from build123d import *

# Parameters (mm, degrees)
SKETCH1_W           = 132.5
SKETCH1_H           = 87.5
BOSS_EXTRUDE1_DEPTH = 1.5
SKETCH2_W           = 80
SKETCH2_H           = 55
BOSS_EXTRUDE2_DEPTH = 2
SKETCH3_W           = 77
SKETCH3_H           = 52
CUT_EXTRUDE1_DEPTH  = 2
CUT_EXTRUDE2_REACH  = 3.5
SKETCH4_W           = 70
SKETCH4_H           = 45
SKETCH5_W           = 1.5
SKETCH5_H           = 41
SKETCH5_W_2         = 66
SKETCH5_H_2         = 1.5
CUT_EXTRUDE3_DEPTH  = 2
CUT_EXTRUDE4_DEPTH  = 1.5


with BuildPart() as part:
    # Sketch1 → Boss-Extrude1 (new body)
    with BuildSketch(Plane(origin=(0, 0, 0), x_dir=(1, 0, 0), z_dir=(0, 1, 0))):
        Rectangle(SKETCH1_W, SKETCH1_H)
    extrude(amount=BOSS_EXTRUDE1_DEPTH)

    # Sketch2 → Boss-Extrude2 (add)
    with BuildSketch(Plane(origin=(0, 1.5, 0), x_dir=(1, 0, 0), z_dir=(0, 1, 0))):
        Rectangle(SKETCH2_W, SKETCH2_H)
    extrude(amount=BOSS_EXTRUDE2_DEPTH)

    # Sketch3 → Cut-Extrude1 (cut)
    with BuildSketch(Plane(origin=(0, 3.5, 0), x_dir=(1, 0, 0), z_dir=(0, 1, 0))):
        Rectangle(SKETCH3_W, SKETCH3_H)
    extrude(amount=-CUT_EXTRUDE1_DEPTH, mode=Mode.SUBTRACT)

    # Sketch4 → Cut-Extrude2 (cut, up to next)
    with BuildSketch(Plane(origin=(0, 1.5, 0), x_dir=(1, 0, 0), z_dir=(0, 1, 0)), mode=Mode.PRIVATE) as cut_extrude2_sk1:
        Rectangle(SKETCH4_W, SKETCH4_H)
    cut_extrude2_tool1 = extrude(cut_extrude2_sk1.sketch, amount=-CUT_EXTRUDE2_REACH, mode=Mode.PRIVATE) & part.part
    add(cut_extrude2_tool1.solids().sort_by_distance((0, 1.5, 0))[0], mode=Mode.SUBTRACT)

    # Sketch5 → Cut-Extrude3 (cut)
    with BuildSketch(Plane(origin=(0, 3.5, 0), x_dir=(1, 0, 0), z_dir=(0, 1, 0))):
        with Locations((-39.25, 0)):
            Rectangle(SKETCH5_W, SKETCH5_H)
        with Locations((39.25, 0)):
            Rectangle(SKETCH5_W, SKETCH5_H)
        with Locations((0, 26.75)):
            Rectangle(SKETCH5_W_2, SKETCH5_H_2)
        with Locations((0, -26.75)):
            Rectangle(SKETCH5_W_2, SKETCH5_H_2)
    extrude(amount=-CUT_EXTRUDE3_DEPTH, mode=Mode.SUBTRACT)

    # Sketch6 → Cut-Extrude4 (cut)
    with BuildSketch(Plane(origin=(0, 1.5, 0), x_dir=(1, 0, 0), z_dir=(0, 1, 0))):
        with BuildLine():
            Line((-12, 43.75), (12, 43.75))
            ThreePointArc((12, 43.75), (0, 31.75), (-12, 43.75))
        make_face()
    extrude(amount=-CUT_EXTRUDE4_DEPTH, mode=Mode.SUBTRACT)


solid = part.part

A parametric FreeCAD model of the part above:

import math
import FreeCAD as App
import Part
import Sketcher
Q = App.Units.Quantity

doc = App.newDocument("Part")
body = doc.addObject("PartDesign::Body", "Body")

sketch1 = doc.addObject("Sketcher::SketchObject", "Sketch")
body.addObject(sketch1)
sketch1.AttachmentSupport = (doc.XZ_Plane, [""])
sketch1.MapMode = "FlatFace"
sketch1.addGeometry([
    Part.LineSegment(App.Vector(-66, -44, 0), App.Vector(-66, 44, 0)),
    Part.LineSegment(App.Vector(-66, 44, 0), App.Vector(66, 44, 0)),
    Part.LineSegment(App.Vector(66, 44, 0), App.Vector(66, -44, 0)),
    Part.LineSegment(App.Vector(66, -44, 0), App.Vector(-66, -44, 0)),
], False)
sketch1.addConstraint([
    Sketcher.Constraint("Coincident", 0, 2, 1, 1),
    Sketcher.Constraint("Coincident", 1, 2, 2, 1),
    Sketcher.Constraint("Coincident", 2, 2, 3, 1),
    Sketcher.Constraint("Coincident", 3, 2, 0, 1),
    Sketcher.Constraint("Vertical", 0),
    Sketcher.Constraint("Horizontal", 1),
    Sketcher.Constraint("Vertical", 2),
    Sketcher.Constraint("Horizontal", 3),
    Sketcher.Constraint("Symmetric", 0, 2, 2, 2, -1, 1),
    Sketcher.Constraint("DistanceX", 1, 1, 1, 2, Q("132.5 mm")),
    Sketcher.Constraint("DistanceY", 0, 1, 0, 2, Q("87.5 mm")),
])
pad1 = doc.addObject("PartDesign::Pad", "Pad")
body.addObject(pad1)
pad1.Profile = sketch1
pad1.Length = 1.5
pad1.Reversed = True

sketch2 = doc.addObject("Sketcher::SketchObject", "Sketch001")
body.addObject(sketch2)
sketch2.AttachmentSupport = (doc.XZ_Plane, [""])
sketch2.MapMode = "FlatFace"
sketch2.AttachmentOffset = App.Placement(App.Vector(0, 0, -1.5), App.Rotation())
sketch2.addGeometry([
    Part.LineSegment(App.Vector(-40, -28, 0), App.Vector(-40, 28, 0)),
    Part.LineSegment(App.Vector(-40, 28, 0), App.Vector(40, 28, 0)),
    Part.LineSegment(App.Vector(40, 28, 0), App.Vector(40, -28, 0)),
    Part.LineSegment(App.Vector(40, -28, 0), App.Vector(-40, -28, 0)),
], False)
sketch2.addConstraint([
    Sketcher.Constraint("Coincident", 0, 2, 1, 1),
    Sketcher.Constraint("Coincident", 1, 2, 2, 1),
    Sketcher.Constraint("Coincident", 2, 2, 3, 1),
    Sketcher.Constraint("Coincident", 3, 2, 0, 1),
    Sketcher.Constraint("Vertical", 0),
    Sketcher.Constraint("Horizontal", 1),
    Sketcher.Constraint("Vertical", 2),
    Sketcher.Constraint("Horizontal", 3),
    Sketcher.Constraint("Symmetric", 0, 2, 2, 2, -1, 1),
    Sketcher.Constraint("DistanceX", 1, 1, 1, 2, Q("80 mm")),
    Sketcher.Constraint("DistanceY", 0, 1, 0, 2, Q("55 mm")),
])
pad2 = doc.addObject("PartDesign::Pad", "Pad001")
body.addObject(pad2)
pad2.Profile = sketch2
pad2.Length = 2
pad2.Reversed = True

sketch3 = doc.addObject("Sketcher::SketchObject", "Sketch002")
body.addObject(sketch3)
sketch3.AttachmentSupport = (doc.XZ_Plane, [""])
sketch3.MapMode = "FlatFace"
sketch3.AttachmentOffset = App.Placement(App.Vector(0, 0, -3.5), App.Rotation())
sketch3.addGeometry([
    Part.LineSegment(App.Vector(-38, -26, 0), App.Vector(-38, 26, 0)),
    Part.LineSegment(App.Vector(-38, 26, 0), App.Vector(38, 26, 0)),
    Part.LineSegment(App.Vector(38, 26, 0), App.Vector(38, -26, 0)),
    Part.LineSegment(App.Vector(38, -26, 0), App.Vector(-38, -26, 0)),
], False)
sketch3.addConstraint([
    Sketcher.Constraint("Coincident", 0, 2, 1, 1),
    Sketcher.Constraint("Coincident", 1, 2, 2, 1),
    Sketcher.Constraint("Coincident", 2, 2, 3, 1),
    Sketcher.Constraint("Coincident", 3, 2, 0, 1),
    Sketcher.Constraint("Vertical", 0),
    Sketcher.Constraint("Horizontal", 1),
    Sketcher.Constraint("Vertical", 2),
    Sketcher.Constraint("Horizontal", 3),
    Sketcher.Constraint("Symmetric", 0, 2, 2, 2, -1, 1),
    Sketcher.Constraint("DistanceX", 1, 1, 1, 2, Q("77 mm")),
    Sketcher.Constraint("DistanceY", 0, 1, 0, 2, Q("52 mm")),
])
pocket1 = doc.addObject("PartDesign::Pocket", "Pocket")
body.addObject(pocket1)
pocket1.Profile = sketch3
pocket1.Length = 2
pocket1.Reversed = True

sketch4 = doc.addObject("Sketcher::SketchObject", "Sketch003")
body.addObject(sketch4)
sketch4.AttachmentSupport = (doc.XZ_Plane, [""])
sketch4.MapMode = "FlatFace"
sketch4.AttachmentOffset = App.Placement(App.Vector(0, 0, -1.5), App.Rotation())
sketch4.addGeometry([
    Part.LineSegment(App.Vector(-35, -22, 0), App.Vector(-35, 22, 0)),
    Part.LineSegment(App.Vector(-35, 22, 0), App.Vector(35, 22, 0)),
    Part.LineSegment(App.Vector(35, 22, 0), App.Vector(35, -22, 0)),
    Part.LineSegment(App.Vector(35, -22, 0), App.Vector(-35, -22, 0)),
], False)
sketch4.addConstraint([
    Sketcher.Constraint("Coincident", 0, 2, 1, 1),
    Sketcher.Constraint("Coincident", 1, 2, 2, 1),
    Sketcher.Constraint("Coincident", 2, 2, 3, 1),
    Sketcher.Constraint("Coincident", 3, 2, 0, 1),
    Sketcher.Constraint("Vertical", 0),
    Sketcher.Constraint("Horizontal", 1),
    Sketcher.Constraint("Vertical", 2),
    Sketcher.Constraint("Horizontal", 3),
    Sketcher.Constraint("Symmetric", 0, 2, 2, 2, -1, 1),
    Sketcher.Constraint("DistanceX", 1, 1, 1, 2, Q("70 mm")),
    Sketcher.Constraint("DistanceY", 0, 1, 0, 2, Q("45 mm")),
])
pocket2 = doc.addObject("PartDesign::Pocket", "Pocket001")
body.addObject(pocket2)
pocket2.Profile = sketch4
pocket2.Type = "UpToFirst"
pocket2.Reversed = True

sketch5 = doc.addObject("Sketcher::SketchObject", "Sketch004")
body.addObject(sketch5)
sketch5.AttachmentSupport = (doc.XZ_Plane, [""])
sketch5.MapMode = "FlatFace"
sketch5.AttachmentOffset = App.Placement(App.Vector(0, 0, -3.5), App.Rotation())
sketch5.addGeometry([
    Part.LineSegment(App.Vector(-40, -20.5, 0), App.Vector(-40, 20.5, 0)),
    Part.LineSegment(App.Vector(-40, 20.5, 0), App.Vector(-38.5, 20.5, 0)),
    Part.LineSegment(App.Vector(-38.5, 20.5, 0), App.Vector(-38.5, -20.5, 0)),
    Part.LineSegment(App.Vector(-38.5, -20.5, 0), App.Vector(-40, -20.5, 0)),
    Part.LineSegment(App.Vector(38.5, -20.5, 0), App.Vector(38.5, 20.5, 0)),
    Part.LineSegment(App.Vector(38.5, 20.5, 0), App.Vector(40, 20.5, 0)),
    Part.LineSegment(App.Vector(40, 20.5, 0), App.Vector(40, -20.5, 0)),
    Part.LineSegment(App.Vector(40, -20.5, 0), App.Vector(38.5, -20.5, 0)),
    Part.LineSegment(App.Vector(-33, -27.5, 0), App.Vector(-33, -26, 0)),
    Part.LineSegment(App.Vector(-33, -26, 0), App.Vector(33, -26, 0)),
    Part.LineSegment(App.Vector(33, -26, 0), App.Vector(33, -27.5, 0)),
    Part.LineSegment(App.Vector(33, -27.5, 0), App.Vector(-33, -27.5, 0)),
    Part.LineSegment(App.Vector(-33, 26, 0), App.Vector(-33, 27.5, 0)),
    Part.LineSegment(App.Vector(-33, 27.5, 0), App.Vector(33, 27.5, 0)),
    Part.LineSegment(App.Vector(33, 27.5, 0), App.Vector(33, 26, 0)),
    Part.LineSegment(App.Vector(33, 26, 0), App.Vector(-33, 26, 0)),
], False)
sketch5.addConstraint([
    Sketcher.Constraint("Coincident", 0, 2, 1, 1),
    Sketcher.Constraint("Coincident", 1, 2, 2, 1),
    Sketcher.Constraint("Coincident", 2, 2, 3, 1),
    Sketcher.Constraint("Coincident", 3, 2, 0, 1),
    Sketcher.Constraint("Coincident", 4, 2, 5, 1),
    Sketcher.Constraint("Coincident", 5, 2, 6, 1),
    Sketcher.Constraint("Coincident", 6, 2, 7, 1),
    Sketcher.Constraint("Coincident", 7, 2, 4, 1),
    Sketcher.Constraint("Coincident", 8, 2, 9, 1),
    Sketcher.Constraint("Coincident", 9, 2, 10, 1),
    Sketcher.Constraint("Coincident", 10, 2, 11, 1),
    Sketcher.Constraint("Coincident", 11, 2, 8, 1),
    Sketcher.Constraint("Coincident", 12, 2, 13, 1),
    Sketcher.Constraint("Coincident", 13, 2, 14, 1),
    Sketcher.Constraint("Coincident", 14, 2, 15, 1),
    Sketcher.Constraint("Coincident", 15, 2, 12, 1),
    Sketcher.Constraint("Vertical", 0),
    Sketcher.Constraint("Horizontal", 1),
    Sketcher.Constraint("Vertical", 2),
    Sketcher.Constraint("Horizontal", 3),
    Sketcher.Constraint("Vertical", 4),
    Sketcher.Constraint("Horizontal", 5),
    Sketcher.Constraint("Vertical", 6),
    Sketcher.Constraint("Horizontal", 7),
    Sketcher.Constraint("Vertical", 8),
    Sketcher.Constraint("Horizontal", 9),
    Sketcher.Constraint("Vertical", 10),
    Sketcher.Constraint("Horizontal", 11),
    Sketcher.Constraint("Vertical", 12),
    Sketcher.Constraint("Horizontal", 13),
    Sketcher.Constraint("Vertical", 14),
    Sketcher.Constraint("Horizontal", 15),
    Sketcher.Constraint("Symmetric", 2, 2, 4, 2, -1, 1),
    Sketcher.Constraint("Symmetric", 0, 2, 6, 2, -1, 1),
    Sketcher.Constraint("Symmetric", 10, 2, 12, 2, -1, 1),
    Sketcher.Constraint("Symmetric", 8, 2, 14, 2, -1, 1),
    Sketcher.Constraint("Horizontal", 1, 2, 4, 2),
    Sketcher.Constraint("Vertical", 11, 2, 12, 2),
    Sketcher.Constraint("Equal", 7, 8),
    Sketcher.Constraint("DistanceX", 9, 1, 9, 2, Q("66 mm")),
    Sketcher.Constraint("DistanceY", 0, 1, 0, 2, Q("41 mm")),
    Sketcher.Constraint("DistanceX", 1, 1, 1, 2, Q("1.5 mm")),
    Sketcher.Constraint("DistanceX", 0, 2, -1, 1, Q("40 mm")),
    Sketcher.Constraint("DistanceY", 8, 2, -1, 1, Q("26 mm")),
])
pocket3 = doc.addObject("PartDesign::Pocket", "Pocket002")
body.addObject(pocket3)
pocket3.Profile = sketch5
pocket3.Length = 2
pocket3.Reversed = True

sketch6 = doc.addObject("Sketcher::SketchObject", "Sketch005")
body.addObject(sketch6)
sketch6.AttachmentSupport = (doc.XZ_Plane, [""])
sketch6.MapMode = "FlatFace"
sketch6.AttachmentOffset = App.Placement(App.Vector(0, 0, -1.5), App.Rotation())
sketch6.addGeometry([
    Part.LineSegment(App.Vector(12, -44, 0), App.Vector(-12, -44, 0)),
    Part.ArcOfCircle(Part.Circle(App.Vector(0, -44, 0), App.Vector(0, 0, 1), 12), math.radians(0), math.radians(180)),
], False)
sketch6.addConstraint([
    Sketcher.Constraint("Coincident", 0, 1, 1, 1),
    Sketcher.Constraint("Coincident", 1, 2, 0, 2),
    Sketcher.Constraint("Horizontal", 0),
    Sketcher.Constraint("PointOnObject", 1, 3, -2),
    Sketcher.Constraint("Horizontal", 1, 3, 0, 1),
    Sketcher.Constraint("Radius", 1, Q("12 mm")),
    Sketcher.Constraint("DistanceY", 1, 3, -1, 1, Q("43.75 mm")),
])
pocket4 = doc.addObject("PartDesign::Pocket", "Pocket003")
body.addObject(pocket4)
pocket4.Profile = sketch6
pocket4.Length = 1.5
pocket4.Reversed = True

doc.recompute()
